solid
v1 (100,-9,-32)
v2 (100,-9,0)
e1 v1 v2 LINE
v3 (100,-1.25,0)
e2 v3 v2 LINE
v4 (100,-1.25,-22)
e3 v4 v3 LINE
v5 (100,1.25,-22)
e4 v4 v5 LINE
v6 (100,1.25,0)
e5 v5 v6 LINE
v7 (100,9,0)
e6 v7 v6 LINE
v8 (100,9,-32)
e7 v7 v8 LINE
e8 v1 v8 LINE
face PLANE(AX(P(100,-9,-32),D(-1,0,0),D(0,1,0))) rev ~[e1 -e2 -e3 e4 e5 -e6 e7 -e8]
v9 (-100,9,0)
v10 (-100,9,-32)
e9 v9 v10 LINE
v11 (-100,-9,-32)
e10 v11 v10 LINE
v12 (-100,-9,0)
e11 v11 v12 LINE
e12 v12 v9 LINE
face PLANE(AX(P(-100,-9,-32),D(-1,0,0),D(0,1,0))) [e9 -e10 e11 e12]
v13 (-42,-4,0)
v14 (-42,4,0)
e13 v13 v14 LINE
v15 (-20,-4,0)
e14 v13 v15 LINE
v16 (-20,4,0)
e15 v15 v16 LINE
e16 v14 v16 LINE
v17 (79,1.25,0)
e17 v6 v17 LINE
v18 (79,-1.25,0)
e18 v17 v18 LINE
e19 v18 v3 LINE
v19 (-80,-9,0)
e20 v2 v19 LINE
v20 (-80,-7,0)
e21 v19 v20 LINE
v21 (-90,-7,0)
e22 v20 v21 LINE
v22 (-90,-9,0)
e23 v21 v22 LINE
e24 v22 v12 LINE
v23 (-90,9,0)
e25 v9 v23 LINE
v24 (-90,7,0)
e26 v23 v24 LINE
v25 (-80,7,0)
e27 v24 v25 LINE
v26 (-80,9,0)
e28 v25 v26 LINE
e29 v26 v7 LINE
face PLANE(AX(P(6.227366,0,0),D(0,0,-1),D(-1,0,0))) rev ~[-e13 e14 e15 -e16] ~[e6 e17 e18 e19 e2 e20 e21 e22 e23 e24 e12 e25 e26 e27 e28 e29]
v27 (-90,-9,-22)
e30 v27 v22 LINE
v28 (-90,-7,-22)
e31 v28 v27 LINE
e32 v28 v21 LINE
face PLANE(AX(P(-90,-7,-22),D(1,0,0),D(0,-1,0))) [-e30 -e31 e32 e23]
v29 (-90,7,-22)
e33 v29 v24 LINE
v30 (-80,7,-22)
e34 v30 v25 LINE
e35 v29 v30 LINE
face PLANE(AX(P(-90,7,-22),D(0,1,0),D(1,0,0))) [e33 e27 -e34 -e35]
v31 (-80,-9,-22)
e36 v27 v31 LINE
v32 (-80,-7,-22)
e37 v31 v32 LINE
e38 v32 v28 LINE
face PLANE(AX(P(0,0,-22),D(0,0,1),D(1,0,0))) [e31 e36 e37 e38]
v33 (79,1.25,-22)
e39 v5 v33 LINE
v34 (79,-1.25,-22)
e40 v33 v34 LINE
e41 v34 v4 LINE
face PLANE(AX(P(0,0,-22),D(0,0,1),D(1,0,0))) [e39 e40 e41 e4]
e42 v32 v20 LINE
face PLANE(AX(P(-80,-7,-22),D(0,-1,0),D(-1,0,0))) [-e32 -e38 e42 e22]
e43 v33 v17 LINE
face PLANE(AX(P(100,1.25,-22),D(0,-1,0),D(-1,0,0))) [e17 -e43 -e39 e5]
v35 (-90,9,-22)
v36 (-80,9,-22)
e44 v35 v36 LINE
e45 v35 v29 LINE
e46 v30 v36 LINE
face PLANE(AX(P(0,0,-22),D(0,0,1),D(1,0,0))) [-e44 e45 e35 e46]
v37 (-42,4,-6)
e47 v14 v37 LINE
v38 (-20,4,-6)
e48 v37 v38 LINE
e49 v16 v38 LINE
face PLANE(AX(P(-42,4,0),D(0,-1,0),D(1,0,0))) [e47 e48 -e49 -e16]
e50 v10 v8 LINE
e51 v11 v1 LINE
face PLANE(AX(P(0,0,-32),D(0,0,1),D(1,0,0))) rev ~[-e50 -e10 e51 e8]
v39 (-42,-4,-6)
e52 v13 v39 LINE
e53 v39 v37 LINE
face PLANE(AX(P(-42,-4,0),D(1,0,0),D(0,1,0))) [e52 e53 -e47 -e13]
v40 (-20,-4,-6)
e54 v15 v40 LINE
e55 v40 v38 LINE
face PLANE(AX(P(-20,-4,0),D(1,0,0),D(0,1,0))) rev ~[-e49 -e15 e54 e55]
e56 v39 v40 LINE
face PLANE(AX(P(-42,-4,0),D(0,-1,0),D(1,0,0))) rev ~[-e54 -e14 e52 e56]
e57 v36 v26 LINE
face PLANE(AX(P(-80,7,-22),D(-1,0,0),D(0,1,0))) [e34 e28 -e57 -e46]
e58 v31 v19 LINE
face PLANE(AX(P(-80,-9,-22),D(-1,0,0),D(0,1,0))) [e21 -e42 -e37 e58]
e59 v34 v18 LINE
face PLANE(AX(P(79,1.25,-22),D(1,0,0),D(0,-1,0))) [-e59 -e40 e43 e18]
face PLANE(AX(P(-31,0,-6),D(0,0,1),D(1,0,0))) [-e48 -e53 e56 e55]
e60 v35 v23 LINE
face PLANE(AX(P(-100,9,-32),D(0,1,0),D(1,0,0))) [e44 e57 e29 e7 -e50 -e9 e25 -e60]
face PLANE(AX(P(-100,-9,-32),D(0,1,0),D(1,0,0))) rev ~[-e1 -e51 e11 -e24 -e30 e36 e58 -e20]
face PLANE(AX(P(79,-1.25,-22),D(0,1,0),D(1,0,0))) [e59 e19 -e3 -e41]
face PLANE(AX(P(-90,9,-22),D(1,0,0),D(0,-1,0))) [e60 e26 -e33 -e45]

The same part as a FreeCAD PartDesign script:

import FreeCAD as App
import Part
import Sketcher

doc = App.newDocument("Part")
body = doc.addObject("PartDesign::Body", "Body")

# Sketch on XY plane
sketch1 = body.newObject("Sketcher::SketchObject", "Sketch")
sketch1.AttachmentSupport = (doc.getObject("XY_Plane"), [""])
sketch1.MapMode = "FlatFace"
sketch1.addGeometry([
    Part.LineSegment(App.Vector(-100, 9, 0), App.Vector(-100, -9, 0)),
    Part.LineSegment(App.Vector(-100, -9, 0), App.Vector(100, -9, 0)),
    Part.LineSegment(App.Vector(100, -9, 0), App.Vector(100, 9, 0)),
    Part.LineSegment(App.Vector(100, 9, 0), App.Vector(-100, 9, 0)),
], False)
sketch1.addConstraint([
    Sketcher.Constraint("Coincident", 0, 2, 1, 1),
    Sketcher.Constraint("Coincident", 1, 2, 2, 1),
    Sketcher.Constraint("Coincident", 2, 2, 3, 1),
    Sketcher.Constraint("Coincident", 3, 2, 0, 1),
    Sketcher.Constraint("Vertical", 0),
    Sketcher.Constraint("Horizontal", 1),
    Sketcher.Constraint("Vertical", 2),
    Sketcher.Constraint("Horizontal", 3),
    Sketcher.Constraint("Symmetric", 0, 2, 2, 2, -1, 1),
    Sketcher.Constraint("DistanceX", 1, 1, 1, 2, 200.0),
    Sketcher.Constraint("DistanceY", 0, 2, 0, 1, 18.0),
])
pad1 = body.newObject("PartDesign::Pad", "Pad")
pad1.Profile = sketch1
pad1.Length = 10
body2 = doc.addObject("PartDesign::Body", "Body001")
doc.recompute()

body.Placement = App.Placement(App.Vector(0, 0, -32), App.Rotation(App.Vector(0, 0, 1), 0))
boolean = body2.newObject("PartDesign::Boolean", "Boolean")
boolean.Type = "Fuse"
boolean.addObjects([body])
body3 = doc.addObject("PartDesign::Body", "Body002")

# Sketch on XY plane
sketch2 = body3.newObject("Sketcher::SketchObject", "Sketch001")
sketch2.AttachmentSupport = (doc.getObject("XY_Plane002"), [""])
sketch2.MapMode = "FlatFace"
sketch2.addGeometry([
    Part.LineSegment(App.Vector(-90, 9, 0), App.Vector(-100, 9, 0)),  # 0
    Part.LineSegment(App.Vector(-100, 9, 0), App.Vector(-100, -9, 0)),  # 1
    Part.LineSegment(App.Vector(-100, -9, 0), App.Vector(-90, -9, 0)),  # 2
    Part.LineSegment(App.Vector(-90, -9, 0), App.Vector(-90, -7, 0)),  # 3
    Part.LineSegment(App.Vector(-90, -7, 0), App.Vector(-80, -7, 0)),  # 4
    Part.LineSegment(App.Vector(-80, -7, 0), App.Vector(-80, -9, 0)),  # 5
    Part.LineSegment(App.Vector(-80, -9, 0), App.Vector(100, -9, 0)),  # 6
    Part.LineSegment(App.Vector(100, -9, 0), App.Vector(100, -1.2, 0)),  # 7
    Part.LineSegment(App.Vector(100, -1.2, 0), App.Vector(79, -1.2, 0)),  # 8
    Part.LineSegment(App.Vector(79, -1.2, 0), App.Vector(79, 1.2, 0)),  # 9
    Part.LineSegment(App.Vector(79, 1.2, 0), App.Vector(100, 1.2, 0)),  # 10
    Part.LineSegment(App.Vector(100, 1.2, 0), App.Vector(100, 9, 0)),  # 11
    Part.LineSegment(App.Vector(100, 9, 0), App.Vector(-80, 9, 0)),  # 12
    Part.LineSegment(App.Vector(-80, 9, 0), App.Vector(-80, 7, 0)),  # 13
    Part.LineSegment(App.Vector(-80, 7, 0), App.Vector(-90, 7, 0)),  # 14
    Part.LineSegment(App.Vector(-90, 7, 0), App.Vector(-90, 9, 0)),  # 15
], False)
sketch2.addConstraint([
    Sketcher.Constraint("Coincident", 0, 2, 1, 1),
    Sketcher.Constraint("Coincident", 1, 2, 2, 1),
    Sketcher.Constraint("Coincident", 2, 2, 3, 1),
    Sketcher.Constraint("Coincident", 3, 2, 4, 1),
    Sketcher.Constraint("Coincident", 4, 2, 5, 1),
    Sketcher.Constraint("Coincident", 5, 2, 6, 1),
    Sketcher.Constraint("Coincident", 6, 2, 7, 1),
    Sketcher.Constraint("Coincident", 7, 2, 8, 1),
    Sketcher.Constraint("Coincident", 8, 2, 9, 1),
    Sketcher.Constraint("Coincident", 9, 2, 10, 1),
    Sketcher.Constraint("Coincident", 10, 2, 11, 1),
    Sketcher.Constraint("Coincident", 11, 2, 12, 1),
    Sketcher.Constraint("Coincident", 12, 2, 13, 1),
    Sketcher.Constraint("Coincident", 13, 2, 14, 1),
    Sketcher.Constraint("Coincident", 14, 2, 15, 1),
    Sketcher.Constraint("Coincident", 15, 2, 0, 1),
    Sketcher.Constraint("Horizontal", 0),
    Sketcher.Constraint("Vertical", 1),
    Sketcher.Constraint("Horizontal", 2),
    Sketcher.Constraint("Vertical", 3),
    Sketcher.Constraint("Horizontal", 4),
    Sketcher.Constraint("Vertical", 5),
    Sketcher.Constraint("Horizontal", 6),
    Sketcher.Constraint("Vertical", 7),
    Sketcher.Constraint("Horizontal", 8),
    Sketcher.Constraint("Vertical", 9),
    Sketcher.Constraint("Horizontal", 10),
    Sketcher.Constraint("Vertical", 11),
    Sketcher.Constraint("Horizontal", 12),
    Sketcher.Constraint("Vertical", 13),
    Sketcher.Constraint("Horizontal", 14),
    Sketcher.Constraint("Vertical", 15),
    Sketcher.Constraint("Symmetric", 0, 2, 6, 2, -1, 1),
    Sketcher.Constraint("Symmetric", 1, 2, 11, 2, -1, 1),
    Sketcher.Constraint("Symmetric", 5, 2, 12, 2, -1),
    Sketcher.Constraint("Symmetric", 3, 2, 14, 2, -1),
    Sketcher.Constraint("Equal", 2, 4),
    Sketcher.Constraint("Equal", 7, 11),
    Sketcher.Constraint("DistanceX", 0, 2, 0, 1, 10.0),
    Sketcher.Constraint("DistanceX", 6, 1, 6, 2, 180.0),
    Sketcher.Constraint("DistanceX", 8, 2, 8, 1, 21.0),
    Sketcher.Constraint("DistanceY", 1, 2, 1, 1, 18.0),
    Sketcher.Constraint("DistanceY", 3, 1, 3, 2, 2.0),
    Sketcher.Constraint("DistanceY", 9, 1, 9, 2, 2.5),
])
pad2 = body3.newObject("PartDesign::Pad", "Pad001")
pad2.Profile = sketch2
pad2.Length = 22

# Sketch on XY plane
sketch3 = body3.newObject("Sketcher::SketchObject", "Sketch002")
sketch3.AttachmentSupport = (doc.getObject("XY_Plane002"), [""])
sketch3.MapMode = "FlatFace"
sketch3.AttachmentOffset = App.Placement(App.Vector(0, 0, 22), App.Rotation())
sketch3.addGeometry([
    Part.LineSegment(App.Vector(-42, 4, 0), App.Vector(-42, -4, 0)),
    Part.LineSegment(App.Vector(-42, -4, 0), App.Vector(-20, -4, 0)),
    Part.LineSegment(App.Vector(-20, -4, 0), App.Vector(-20, 4, 0)),
    Part.LineSegment(App.Vector(-20, 4, 0), App.Vector(-42, 4, 0)),
], False)
sketch3.addConstraint([
    Sketcher.Constraint("Coincident", 0, 2, 1, 1),
    Sketcher.Constraint("Coincident", 1, 2, 2, 1),
    Sketcher.Constraint("Coincident", 2, 2, 3, 1),
    Sketcher.Constraint("Coincident", 3, 2, 0, 1),
    Sketcher.Constraint("Vertical", 0),
    Sketcher.Constraint("Horizontal", 1),
    Sketcher.Constraint("Vertical", 2),
    Sketcher.Constraint("Horizontal", 3),
    Sketcher.Constraint("DistanceX", 1, 1, 1, 2, 22.0),
    Sketcher.Constraint("DistanceY", 0, 2, 0, 1, 8.0),
    Sketcher.Constraint("DistanceX", 0, 2, -1, 1, 42.0),
    Sketcher.Constraint("DistanceY", 0, 2, -1, 1, 4.0),
])
pocket1 = body3.newObject("PartDesign::Pocket", "Pocket")
pocket1.Profile = sketch3
pocket1.Length = 6
body4 = doc.addObject("PartDesign::Body", "Body003")
doc.recompute()

body3.Placement = App.Placement(App.Vector(0, 0, -22), App.Rotation(App.Vector(0, 0, 1), 0))
boolean2 = body4.newObject("PartDesign::Boolean", "Boolean001")
boolean2.Type = "Fuse"
boolean2.addObjects([body3])
doc.recompute()

boolean3 = body4.newObject("PartDesign::Boolean", "Boolean002")
boolean3.Type = "Fuse"
boolean3.addObjects([body2])

doc.recompute()
